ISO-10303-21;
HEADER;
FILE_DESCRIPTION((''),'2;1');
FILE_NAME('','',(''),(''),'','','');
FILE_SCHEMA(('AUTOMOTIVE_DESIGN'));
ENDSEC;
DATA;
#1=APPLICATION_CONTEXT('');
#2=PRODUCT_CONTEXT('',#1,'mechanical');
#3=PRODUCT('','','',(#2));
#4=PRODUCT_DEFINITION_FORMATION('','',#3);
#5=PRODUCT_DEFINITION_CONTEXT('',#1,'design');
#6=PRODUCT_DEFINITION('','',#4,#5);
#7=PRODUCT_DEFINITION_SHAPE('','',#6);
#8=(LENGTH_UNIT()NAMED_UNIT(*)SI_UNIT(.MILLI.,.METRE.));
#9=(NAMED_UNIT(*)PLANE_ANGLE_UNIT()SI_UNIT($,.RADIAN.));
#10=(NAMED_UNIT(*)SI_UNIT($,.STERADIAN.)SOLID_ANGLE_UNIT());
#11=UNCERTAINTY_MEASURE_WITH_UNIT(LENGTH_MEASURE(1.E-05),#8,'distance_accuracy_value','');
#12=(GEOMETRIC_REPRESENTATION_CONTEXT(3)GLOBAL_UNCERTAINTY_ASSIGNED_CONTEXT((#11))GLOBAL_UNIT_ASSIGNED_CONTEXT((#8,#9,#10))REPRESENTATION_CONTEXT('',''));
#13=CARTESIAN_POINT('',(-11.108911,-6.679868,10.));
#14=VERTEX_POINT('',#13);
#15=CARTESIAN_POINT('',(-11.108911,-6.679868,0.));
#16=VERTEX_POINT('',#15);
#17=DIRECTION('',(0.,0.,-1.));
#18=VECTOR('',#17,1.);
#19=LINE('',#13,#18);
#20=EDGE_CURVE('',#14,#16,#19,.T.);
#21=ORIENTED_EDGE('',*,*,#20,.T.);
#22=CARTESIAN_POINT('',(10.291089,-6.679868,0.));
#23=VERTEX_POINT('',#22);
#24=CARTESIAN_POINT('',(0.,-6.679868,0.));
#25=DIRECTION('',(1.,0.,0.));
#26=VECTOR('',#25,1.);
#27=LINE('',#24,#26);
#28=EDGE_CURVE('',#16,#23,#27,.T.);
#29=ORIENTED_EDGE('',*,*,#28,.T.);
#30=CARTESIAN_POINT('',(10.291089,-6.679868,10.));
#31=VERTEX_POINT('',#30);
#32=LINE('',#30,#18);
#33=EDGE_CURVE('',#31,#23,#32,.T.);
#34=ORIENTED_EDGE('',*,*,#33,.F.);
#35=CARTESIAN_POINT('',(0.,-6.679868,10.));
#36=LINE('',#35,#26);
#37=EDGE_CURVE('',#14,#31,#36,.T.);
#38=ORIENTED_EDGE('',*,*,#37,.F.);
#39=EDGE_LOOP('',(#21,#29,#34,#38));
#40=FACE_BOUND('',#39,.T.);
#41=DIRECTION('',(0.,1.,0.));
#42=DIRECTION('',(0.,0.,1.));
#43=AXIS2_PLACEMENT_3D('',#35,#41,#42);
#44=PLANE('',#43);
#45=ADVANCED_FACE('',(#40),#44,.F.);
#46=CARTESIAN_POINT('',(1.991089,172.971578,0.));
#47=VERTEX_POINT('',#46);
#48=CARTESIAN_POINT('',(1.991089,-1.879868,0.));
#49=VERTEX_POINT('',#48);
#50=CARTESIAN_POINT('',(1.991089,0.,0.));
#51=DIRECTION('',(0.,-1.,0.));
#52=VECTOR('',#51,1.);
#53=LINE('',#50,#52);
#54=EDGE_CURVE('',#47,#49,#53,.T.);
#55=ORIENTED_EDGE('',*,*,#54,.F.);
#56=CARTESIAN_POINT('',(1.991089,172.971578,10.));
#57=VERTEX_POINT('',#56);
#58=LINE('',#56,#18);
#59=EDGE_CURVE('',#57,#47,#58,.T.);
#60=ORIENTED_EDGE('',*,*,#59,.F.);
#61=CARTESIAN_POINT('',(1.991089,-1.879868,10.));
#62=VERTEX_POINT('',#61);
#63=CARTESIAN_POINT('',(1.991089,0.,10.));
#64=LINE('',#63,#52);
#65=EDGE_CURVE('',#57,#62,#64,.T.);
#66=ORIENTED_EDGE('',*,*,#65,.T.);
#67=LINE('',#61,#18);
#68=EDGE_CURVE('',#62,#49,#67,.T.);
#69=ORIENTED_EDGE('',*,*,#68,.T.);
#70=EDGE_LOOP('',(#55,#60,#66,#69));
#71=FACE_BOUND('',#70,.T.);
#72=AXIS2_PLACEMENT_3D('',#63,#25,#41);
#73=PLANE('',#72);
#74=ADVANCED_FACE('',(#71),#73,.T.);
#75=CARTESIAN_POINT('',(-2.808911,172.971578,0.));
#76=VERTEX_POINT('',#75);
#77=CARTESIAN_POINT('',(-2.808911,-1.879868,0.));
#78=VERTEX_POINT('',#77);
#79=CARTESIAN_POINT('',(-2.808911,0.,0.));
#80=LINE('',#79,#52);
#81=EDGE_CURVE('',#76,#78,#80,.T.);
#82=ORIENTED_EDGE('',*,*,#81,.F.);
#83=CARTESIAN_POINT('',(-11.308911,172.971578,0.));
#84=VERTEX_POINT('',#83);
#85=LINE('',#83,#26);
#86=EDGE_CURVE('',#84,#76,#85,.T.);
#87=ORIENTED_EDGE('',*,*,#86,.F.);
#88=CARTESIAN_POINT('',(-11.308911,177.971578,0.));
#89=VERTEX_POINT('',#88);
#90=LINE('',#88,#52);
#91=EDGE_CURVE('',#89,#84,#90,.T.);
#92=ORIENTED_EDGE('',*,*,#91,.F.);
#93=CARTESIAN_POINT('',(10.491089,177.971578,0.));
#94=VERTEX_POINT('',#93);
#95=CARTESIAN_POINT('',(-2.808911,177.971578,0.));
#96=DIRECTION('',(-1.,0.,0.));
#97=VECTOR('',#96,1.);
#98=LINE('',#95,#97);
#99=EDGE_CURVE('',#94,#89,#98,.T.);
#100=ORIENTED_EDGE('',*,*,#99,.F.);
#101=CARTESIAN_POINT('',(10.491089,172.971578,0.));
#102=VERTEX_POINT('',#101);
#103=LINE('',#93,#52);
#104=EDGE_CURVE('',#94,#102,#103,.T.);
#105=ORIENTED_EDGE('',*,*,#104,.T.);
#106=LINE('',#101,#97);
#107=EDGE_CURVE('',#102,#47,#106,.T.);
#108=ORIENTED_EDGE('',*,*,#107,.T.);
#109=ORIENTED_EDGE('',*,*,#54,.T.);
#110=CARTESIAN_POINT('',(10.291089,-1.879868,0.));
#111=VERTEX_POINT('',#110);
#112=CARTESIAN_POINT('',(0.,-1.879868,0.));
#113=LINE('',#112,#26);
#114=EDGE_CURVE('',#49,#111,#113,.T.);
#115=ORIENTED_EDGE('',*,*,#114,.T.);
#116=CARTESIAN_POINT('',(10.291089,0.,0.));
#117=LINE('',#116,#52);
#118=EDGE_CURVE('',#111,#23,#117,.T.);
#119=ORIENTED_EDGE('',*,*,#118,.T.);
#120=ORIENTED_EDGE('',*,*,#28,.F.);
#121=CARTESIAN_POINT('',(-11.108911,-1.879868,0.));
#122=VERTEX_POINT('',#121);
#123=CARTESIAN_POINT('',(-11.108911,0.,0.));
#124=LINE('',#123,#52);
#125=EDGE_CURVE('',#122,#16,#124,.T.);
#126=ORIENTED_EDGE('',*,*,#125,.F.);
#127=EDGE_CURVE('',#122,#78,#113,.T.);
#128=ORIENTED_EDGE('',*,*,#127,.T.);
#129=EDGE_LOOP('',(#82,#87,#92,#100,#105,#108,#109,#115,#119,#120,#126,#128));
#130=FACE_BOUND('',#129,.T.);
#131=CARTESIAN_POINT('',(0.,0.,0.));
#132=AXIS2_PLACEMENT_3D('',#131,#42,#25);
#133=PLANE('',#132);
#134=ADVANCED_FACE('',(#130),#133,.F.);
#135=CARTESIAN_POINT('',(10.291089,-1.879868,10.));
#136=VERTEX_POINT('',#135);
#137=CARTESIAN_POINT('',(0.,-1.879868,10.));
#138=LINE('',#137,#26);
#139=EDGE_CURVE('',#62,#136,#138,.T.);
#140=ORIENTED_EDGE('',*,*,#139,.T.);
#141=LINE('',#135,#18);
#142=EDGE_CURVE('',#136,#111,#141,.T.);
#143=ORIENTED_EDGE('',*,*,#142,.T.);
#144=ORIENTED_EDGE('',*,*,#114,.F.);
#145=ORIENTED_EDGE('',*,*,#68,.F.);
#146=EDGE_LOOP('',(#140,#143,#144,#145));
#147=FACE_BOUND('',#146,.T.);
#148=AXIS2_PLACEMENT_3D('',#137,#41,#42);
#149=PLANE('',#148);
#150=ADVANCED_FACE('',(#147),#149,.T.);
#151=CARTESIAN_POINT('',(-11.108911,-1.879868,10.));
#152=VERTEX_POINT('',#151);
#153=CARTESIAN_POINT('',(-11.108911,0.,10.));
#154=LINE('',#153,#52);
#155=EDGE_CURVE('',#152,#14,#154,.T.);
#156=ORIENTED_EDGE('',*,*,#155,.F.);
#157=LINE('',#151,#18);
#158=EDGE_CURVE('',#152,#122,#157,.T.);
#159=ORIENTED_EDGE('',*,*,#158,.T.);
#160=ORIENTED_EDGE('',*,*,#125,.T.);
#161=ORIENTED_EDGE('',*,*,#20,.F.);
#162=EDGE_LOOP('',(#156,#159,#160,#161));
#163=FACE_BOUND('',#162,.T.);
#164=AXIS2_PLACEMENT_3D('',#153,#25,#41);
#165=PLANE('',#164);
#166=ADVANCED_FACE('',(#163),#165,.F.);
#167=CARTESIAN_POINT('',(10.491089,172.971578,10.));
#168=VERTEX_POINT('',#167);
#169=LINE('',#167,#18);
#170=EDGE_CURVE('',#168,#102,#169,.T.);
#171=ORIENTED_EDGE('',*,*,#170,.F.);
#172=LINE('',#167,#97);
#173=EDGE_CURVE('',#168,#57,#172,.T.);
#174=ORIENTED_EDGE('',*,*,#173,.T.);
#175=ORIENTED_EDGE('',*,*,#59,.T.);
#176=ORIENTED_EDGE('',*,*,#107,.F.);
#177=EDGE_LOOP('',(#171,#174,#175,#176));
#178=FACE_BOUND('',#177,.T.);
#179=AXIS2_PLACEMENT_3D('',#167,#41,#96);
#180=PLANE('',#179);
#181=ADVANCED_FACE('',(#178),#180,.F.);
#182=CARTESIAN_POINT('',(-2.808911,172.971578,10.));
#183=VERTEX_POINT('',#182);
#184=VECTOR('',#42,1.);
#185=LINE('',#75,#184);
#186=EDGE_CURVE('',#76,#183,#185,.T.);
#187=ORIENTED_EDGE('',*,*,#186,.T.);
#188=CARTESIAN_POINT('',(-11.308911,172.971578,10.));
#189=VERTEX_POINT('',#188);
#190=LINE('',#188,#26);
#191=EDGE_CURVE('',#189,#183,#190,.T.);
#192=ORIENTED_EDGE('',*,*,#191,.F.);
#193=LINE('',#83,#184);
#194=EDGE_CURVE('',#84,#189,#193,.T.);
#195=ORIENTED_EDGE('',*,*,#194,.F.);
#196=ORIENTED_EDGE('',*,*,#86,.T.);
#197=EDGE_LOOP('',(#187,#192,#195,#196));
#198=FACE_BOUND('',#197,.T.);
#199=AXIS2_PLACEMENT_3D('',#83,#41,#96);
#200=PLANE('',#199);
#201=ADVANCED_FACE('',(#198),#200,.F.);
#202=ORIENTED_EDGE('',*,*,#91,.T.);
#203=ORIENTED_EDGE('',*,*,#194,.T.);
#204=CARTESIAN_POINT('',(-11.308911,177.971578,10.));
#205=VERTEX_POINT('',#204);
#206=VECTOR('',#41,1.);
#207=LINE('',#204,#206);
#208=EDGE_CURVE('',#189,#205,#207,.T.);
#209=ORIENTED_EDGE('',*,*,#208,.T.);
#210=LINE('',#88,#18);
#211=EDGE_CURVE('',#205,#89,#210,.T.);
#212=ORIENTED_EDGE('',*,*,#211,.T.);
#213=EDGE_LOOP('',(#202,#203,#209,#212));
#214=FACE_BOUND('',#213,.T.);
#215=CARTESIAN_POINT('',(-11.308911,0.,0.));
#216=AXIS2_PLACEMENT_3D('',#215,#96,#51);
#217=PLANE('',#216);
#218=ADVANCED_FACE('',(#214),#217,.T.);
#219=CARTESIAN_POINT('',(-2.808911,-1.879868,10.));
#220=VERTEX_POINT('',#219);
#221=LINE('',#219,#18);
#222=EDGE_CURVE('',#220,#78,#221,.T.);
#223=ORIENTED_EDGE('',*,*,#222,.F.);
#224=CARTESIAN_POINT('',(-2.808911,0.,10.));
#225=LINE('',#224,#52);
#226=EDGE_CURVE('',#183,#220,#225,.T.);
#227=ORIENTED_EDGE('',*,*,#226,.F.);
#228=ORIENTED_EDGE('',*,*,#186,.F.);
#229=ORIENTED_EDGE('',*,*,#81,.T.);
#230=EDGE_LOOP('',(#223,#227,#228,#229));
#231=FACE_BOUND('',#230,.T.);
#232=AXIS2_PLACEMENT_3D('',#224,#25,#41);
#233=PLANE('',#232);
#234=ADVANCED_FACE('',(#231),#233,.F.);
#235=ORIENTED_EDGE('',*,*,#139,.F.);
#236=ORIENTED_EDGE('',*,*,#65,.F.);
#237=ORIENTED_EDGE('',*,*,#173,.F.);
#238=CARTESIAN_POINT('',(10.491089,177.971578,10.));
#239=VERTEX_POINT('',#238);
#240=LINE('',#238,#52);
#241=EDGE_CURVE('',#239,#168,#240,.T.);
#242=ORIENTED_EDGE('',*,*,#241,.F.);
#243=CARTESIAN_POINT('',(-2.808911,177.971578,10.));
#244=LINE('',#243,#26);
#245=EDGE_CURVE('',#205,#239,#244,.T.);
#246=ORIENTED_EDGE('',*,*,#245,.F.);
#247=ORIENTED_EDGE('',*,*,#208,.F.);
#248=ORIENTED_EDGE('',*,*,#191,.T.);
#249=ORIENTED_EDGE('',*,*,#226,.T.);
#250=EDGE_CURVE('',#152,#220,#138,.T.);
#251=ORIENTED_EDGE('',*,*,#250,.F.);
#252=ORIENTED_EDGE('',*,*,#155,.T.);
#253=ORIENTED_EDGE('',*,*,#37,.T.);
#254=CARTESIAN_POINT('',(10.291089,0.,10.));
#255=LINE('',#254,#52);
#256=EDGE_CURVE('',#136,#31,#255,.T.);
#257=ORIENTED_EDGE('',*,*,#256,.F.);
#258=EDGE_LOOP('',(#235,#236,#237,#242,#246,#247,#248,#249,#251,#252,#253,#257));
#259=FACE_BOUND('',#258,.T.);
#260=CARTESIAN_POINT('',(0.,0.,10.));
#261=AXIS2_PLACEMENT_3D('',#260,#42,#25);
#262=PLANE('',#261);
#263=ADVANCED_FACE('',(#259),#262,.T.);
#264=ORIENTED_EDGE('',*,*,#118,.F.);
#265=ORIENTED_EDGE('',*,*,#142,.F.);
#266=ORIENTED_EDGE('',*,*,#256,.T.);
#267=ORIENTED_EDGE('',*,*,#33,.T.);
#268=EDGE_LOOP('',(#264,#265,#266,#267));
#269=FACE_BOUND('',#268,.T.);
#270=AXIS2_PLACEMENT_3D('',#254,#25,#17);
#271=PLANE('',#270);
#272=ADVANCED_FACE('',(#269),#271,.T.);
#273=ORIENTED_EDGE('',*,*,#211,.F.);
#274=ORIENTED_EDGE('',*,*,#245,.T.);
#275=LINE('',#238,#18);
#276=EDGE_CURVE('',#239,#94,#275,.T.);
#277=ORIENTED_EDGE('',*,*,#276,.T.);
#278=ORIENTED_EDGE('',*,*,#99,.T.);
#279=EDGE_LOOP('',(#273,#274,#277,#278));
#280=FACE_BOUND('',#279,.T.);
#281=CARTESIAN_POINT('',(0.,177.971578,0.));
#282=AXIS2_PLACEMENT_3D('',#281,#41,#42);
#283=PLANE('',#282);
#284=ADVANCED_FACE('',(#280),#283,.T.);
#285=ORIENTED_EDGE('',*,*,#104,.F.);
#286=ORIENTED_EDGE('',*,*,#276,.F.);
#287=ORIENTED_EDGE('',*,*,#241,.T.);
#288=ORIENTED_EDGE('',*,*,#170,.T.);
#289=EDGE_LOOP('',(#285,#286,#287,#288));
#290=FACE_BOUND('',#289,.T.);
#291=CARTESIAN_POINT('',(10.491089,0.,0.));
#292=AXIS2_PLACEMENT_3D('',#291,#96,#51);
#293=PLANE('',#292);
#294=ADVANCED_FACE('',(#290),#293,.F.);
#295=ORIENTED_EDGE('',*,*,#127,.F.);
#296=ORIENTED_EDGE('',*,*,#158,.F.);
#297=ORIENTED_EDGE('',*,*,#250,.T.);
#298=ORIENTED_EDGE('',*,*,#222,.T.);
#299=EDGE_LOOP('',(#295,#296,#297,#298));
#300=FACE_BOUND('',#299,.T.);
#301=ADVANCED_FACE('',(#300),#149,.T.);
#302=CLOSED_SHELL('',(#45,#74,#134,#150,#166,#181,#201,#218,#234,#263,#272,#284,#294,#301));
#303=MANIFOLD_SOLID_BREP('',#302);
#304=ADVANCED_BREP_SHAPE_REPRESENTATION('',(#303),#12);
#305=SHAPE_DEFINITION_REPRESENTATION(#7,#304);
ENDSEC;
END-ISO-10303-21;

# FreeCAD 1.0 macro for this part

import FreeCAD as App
import Part
import Sketcher

V = App.Vector

doc = App.newDocument("Part")
body = doc.addObject("PartDesign::Body", "Body")

# Sketch on XY plane
sketch1 = body.newObject("Sketcher::SketchObject", "Sketch")
sketch1.AttachmentSupport = (doc.getObject("XY_Plane"), [""])
sketch1.MapMode = "FlatFace"
sketch1.addGeometry([
    Part.LineSegment(V(-2.8, 0.5, 0), V(-2.8, -1.9, 0)),  # 0
    Part.LineSegment(V(-2.8, -1.9, 0), V(-11.1, -1.9, 0)),  # 1
    Part.LineSegment(V(-11.1, -1.9, 0), V(-11.1, -6.7, 0)),  # 2
    Part.LineSegment(V(-11.1, -6.7, 0), V(10.3, -6.7, 0)),  # 3
    Part.LineSegment(V(10.3, -6.7, 0), V(10.3, -1.9, 0)),  # 4
    Part.LineSegment(V(10.3, -1.9, 0), V(2, -1.9, 0)),  # 5
    Part.LineSegment(V(2, -1.9, 0), V(2, 0.5, 0)),  # 6
    Part.LineSegment(V(2, 0.5, 0), V(-2.8, 0.5, 0)),  # 7
], False)
sketch1.addConstraint([
    Sketcher.Constraint("Coincident", 0, 2, 1, 1),
    Sketcher.Constraint("Coincident", 1, 2, 2, 1),
    Sketcher.Constraint("Coincident", 2, 2, 3, 1),
    Sketcher.Constraint("Coincident", 3, 2, 4, 1),
    Sketcher.Constraint("Coincident", 4, 2, 5, 1),
    Sketcher.Constraint("Coincident", 5, 2, 6, 1),
    Sketcher.Constraint("Coincident", 6, 2, 7, 1),
    Sketcher.Constraint("Coincident", 7, 2, 0, 1),
    Sketcher.Constraint("Vertical", 0),
    Sketcher.Constraint("Horizontal", 1),
    Sketcher.Constraint("Vertical", 2),
    Sketcher.Constraint("Horizontal", 3),
    Sketcher.Constraint("Vertical", 4),
    Sketcher.Constraint("Horizontal", 5),
    Sketcher.Constraint("Vertical", 6),
    Sketcher.Constraint("Horizontal", 7),
    Sketcher.Constraint("Horizontal", 1, 2, 4, 2),
    Sketcher.Constraint("Equal", 1, 5),
    Sketcher.Constraint("Equal", 7, 2),
    Sketcher.Constraint("DistanceX", 1, 2, 1, 1, 8.3),
    Sketcher.Constraint("DistanceX", 3, 1, 3, 2, 21.4),
    Sketcher.Constraint("DistanceY", 0, 2, 0, 1, 2.351446),
    Sketcher.Constraint("DistanceX", 0, 2, -1, 1, 2.808911),
    Sketcher.Constraint("DistanceY", 0, 2, -1, 1, 1.879868),
])
pad1 = body.newObject("PartDesign::Pad", "Pad")
pad1.Profile = sketch1
pad1.Length = 10

# Sketch on XZ plane
sketch2 = body.newObject("Sketcher::SketchObject", "Sketch001")
sketch2.AttachmentSupport = (doc.getObject("XZ_Plane"), [""])
sketch2.MapMode = "FlatFace"
sketch2.AttachmentOffset = App.Placement(V(0, 0, -0.471578), App.Rotation())
sketch2.addGeometry([
    Part.LineSegment(V(-2.8, 0, 0), V(-2.8, 10, 0)),
    Part.LineSegment(V(-2.8, 10, 0), V(2, 10, 0)),
    Part.LineSegment(V(2, 10, 0), V(2, 0, 0)),
    Part.LineSegment(V(2, 0, 0), V(-2.8, 0, 0)),
], False)
sketch2.addConstraint([
    Sketcher.Constraint("Coincident", 0, 2, 1, 1),
    Sketcher.Constraint("Coincident", 1, 2, 2, 1),
    Sketcher.Constraint("Coincident", 2, 2, 3, 1),
    Sketcher.Constraint("Coincident", 3, 2, 0, 1),
    Sketcher.Constraint("Vertical", 0),
    Sketcher.Constraint("Horizontal", 1),
    Sketcher.Constraint("Vertical", 2),
    Sketcher.Constraint("Horizontal", 3),
    Sketcher.Constraint("PointOnObject", 2, 2, -1),
    Sketcher.Constraint("DistanceY", 0, 1, 0, 2, 10.0),
    Sketcher.Constraint("DistanceX", 1, 1, 1, 2, 4.8),
    Sketcher.Constraint("DistanceX", 0, 2, -1, 1, 2.808911),
])
pad2 = body.newObject("PartDesign::Pad", "Pad001")
pad2.Profile = sketch2
pad2.Length = 177.5
pad2.Reversed = True

# Sketch on YZ plane
sketch3 = body.newObject("Sketcher::SketchObject", "Sketch002")
sketch3.AttachmentSupport = (doc.getObject("YZ_Plane"), [""])
sketch3.MapMode = "FlatFace"
sketch3.AttachmentOffset = App.Placement(V(0, 0, 1.991089), App.Rotation())
sketch3.addGeometry([
    Part.LineSegment(V(178, 10, 0), V(173, 10, 0)),
    Part.LineSegment(V(173, 10, 0), V(173, 0, 0)),
    Part.LineSegment(V(173, 0, 0), V(178, 0, 0)),
    Part.LineSegment(V(178, 0, 0), V(178, 10, 0)),
], False)
sketch3.addConstraint([
    Sketcher.Constraint("Coincident", 0, 2, 1, 1),
    Sketcher.Constraint("Coincident", 1, 2, 2, 1),
    Sketcher.Constraint("Coincident", 2, 2, 3, 1),
    Sketcher.Constraint("Coincident", 3, 2, 0, 1),
    Sketcher.Constraint("Horizontal", 0),
    Sketcher.Constraint("Vertical", 1),
    Sketcher.Constraint("Horizontal", 2),
    Sketcher.Constraint("Vertical", 3),
    Sketcher.Constraint("PointOnObject", 1, 2, -1),
    Sketcher.Constraint("DistanceX", 0, 2, 0, 1, 5.0),
    Sketcher.Constraint("DistanceY", 1, 2, 1, 1, 10.0),
    Sketcher.Constraint("DistanceX", -1, 1, 0, 2, 172.971578),
])
pad3 = body.newObject("PartDesign::Pad", "Pad002")
pad3.Profile = sketch3
pad3.Length = 8.5

# Sketch on YZ plane
sketch4 = body.newObject("Sketcher::SketchObject", "Sketch003")
sketch4.AttachmentSupport = (doc.getObject("YZ_Plane"), [""])
sketch4.MapMode = "FlatFace"
sketch4.AttachmentOffset = App.Placement(V(0, 0, -2.808911), App.Rotation())
sketch4.addGeometry([
    Part.LineSegment(V(178, 0, 0), V(173, 0, 0)),
    Part.LineSegment(V(173, 0, 0), V(173, 10, 0)),
    Part.LineSegment(V(173, 10, 0), V(178, 10, 0)),
    Part.LineSegment(V(178, 10, 0), V(178, 0, 0)),
], False)
sketch4.addConstraint([
    Sketcher.Constraint("Coincident", 0, 2, 1, 1),
    Sketcher.Constraint("Coincident", 1, 2, 2, 1),
    Sketcher.Constraint("Coincident", 2, 2, 3, 1),
    Sketcher.Constraint("Coincident", 3, 2, 0, 1),
    Sketcher.Constraint("Horizontal", 0),
    Sketcher.Constraint("Vertical", 1),
    Sketcher.Constraint("Horizontal", 2),
    Sketcher.Constraint("Vertical", 3),
    Sketcher.Constraint("PointOnObject", 0, 2, -1),
    Sketcher.Constraint("DistanceX", 0, 2, 0, 1, 5.0),
    Sketcher.Constraint("DistanceY", 1, 1, 1, 2, 10.0),
    Sketcher.Constraint("DistanceX", -1, 1, 0, 2, 172.971578),
])
pad4 = body.newObject("PartDesign::Pad", "Pad003")
pad4.Profile = sketch4
pad4.Length = 8.5
pad4.Reversed = True

doc.recompute()
